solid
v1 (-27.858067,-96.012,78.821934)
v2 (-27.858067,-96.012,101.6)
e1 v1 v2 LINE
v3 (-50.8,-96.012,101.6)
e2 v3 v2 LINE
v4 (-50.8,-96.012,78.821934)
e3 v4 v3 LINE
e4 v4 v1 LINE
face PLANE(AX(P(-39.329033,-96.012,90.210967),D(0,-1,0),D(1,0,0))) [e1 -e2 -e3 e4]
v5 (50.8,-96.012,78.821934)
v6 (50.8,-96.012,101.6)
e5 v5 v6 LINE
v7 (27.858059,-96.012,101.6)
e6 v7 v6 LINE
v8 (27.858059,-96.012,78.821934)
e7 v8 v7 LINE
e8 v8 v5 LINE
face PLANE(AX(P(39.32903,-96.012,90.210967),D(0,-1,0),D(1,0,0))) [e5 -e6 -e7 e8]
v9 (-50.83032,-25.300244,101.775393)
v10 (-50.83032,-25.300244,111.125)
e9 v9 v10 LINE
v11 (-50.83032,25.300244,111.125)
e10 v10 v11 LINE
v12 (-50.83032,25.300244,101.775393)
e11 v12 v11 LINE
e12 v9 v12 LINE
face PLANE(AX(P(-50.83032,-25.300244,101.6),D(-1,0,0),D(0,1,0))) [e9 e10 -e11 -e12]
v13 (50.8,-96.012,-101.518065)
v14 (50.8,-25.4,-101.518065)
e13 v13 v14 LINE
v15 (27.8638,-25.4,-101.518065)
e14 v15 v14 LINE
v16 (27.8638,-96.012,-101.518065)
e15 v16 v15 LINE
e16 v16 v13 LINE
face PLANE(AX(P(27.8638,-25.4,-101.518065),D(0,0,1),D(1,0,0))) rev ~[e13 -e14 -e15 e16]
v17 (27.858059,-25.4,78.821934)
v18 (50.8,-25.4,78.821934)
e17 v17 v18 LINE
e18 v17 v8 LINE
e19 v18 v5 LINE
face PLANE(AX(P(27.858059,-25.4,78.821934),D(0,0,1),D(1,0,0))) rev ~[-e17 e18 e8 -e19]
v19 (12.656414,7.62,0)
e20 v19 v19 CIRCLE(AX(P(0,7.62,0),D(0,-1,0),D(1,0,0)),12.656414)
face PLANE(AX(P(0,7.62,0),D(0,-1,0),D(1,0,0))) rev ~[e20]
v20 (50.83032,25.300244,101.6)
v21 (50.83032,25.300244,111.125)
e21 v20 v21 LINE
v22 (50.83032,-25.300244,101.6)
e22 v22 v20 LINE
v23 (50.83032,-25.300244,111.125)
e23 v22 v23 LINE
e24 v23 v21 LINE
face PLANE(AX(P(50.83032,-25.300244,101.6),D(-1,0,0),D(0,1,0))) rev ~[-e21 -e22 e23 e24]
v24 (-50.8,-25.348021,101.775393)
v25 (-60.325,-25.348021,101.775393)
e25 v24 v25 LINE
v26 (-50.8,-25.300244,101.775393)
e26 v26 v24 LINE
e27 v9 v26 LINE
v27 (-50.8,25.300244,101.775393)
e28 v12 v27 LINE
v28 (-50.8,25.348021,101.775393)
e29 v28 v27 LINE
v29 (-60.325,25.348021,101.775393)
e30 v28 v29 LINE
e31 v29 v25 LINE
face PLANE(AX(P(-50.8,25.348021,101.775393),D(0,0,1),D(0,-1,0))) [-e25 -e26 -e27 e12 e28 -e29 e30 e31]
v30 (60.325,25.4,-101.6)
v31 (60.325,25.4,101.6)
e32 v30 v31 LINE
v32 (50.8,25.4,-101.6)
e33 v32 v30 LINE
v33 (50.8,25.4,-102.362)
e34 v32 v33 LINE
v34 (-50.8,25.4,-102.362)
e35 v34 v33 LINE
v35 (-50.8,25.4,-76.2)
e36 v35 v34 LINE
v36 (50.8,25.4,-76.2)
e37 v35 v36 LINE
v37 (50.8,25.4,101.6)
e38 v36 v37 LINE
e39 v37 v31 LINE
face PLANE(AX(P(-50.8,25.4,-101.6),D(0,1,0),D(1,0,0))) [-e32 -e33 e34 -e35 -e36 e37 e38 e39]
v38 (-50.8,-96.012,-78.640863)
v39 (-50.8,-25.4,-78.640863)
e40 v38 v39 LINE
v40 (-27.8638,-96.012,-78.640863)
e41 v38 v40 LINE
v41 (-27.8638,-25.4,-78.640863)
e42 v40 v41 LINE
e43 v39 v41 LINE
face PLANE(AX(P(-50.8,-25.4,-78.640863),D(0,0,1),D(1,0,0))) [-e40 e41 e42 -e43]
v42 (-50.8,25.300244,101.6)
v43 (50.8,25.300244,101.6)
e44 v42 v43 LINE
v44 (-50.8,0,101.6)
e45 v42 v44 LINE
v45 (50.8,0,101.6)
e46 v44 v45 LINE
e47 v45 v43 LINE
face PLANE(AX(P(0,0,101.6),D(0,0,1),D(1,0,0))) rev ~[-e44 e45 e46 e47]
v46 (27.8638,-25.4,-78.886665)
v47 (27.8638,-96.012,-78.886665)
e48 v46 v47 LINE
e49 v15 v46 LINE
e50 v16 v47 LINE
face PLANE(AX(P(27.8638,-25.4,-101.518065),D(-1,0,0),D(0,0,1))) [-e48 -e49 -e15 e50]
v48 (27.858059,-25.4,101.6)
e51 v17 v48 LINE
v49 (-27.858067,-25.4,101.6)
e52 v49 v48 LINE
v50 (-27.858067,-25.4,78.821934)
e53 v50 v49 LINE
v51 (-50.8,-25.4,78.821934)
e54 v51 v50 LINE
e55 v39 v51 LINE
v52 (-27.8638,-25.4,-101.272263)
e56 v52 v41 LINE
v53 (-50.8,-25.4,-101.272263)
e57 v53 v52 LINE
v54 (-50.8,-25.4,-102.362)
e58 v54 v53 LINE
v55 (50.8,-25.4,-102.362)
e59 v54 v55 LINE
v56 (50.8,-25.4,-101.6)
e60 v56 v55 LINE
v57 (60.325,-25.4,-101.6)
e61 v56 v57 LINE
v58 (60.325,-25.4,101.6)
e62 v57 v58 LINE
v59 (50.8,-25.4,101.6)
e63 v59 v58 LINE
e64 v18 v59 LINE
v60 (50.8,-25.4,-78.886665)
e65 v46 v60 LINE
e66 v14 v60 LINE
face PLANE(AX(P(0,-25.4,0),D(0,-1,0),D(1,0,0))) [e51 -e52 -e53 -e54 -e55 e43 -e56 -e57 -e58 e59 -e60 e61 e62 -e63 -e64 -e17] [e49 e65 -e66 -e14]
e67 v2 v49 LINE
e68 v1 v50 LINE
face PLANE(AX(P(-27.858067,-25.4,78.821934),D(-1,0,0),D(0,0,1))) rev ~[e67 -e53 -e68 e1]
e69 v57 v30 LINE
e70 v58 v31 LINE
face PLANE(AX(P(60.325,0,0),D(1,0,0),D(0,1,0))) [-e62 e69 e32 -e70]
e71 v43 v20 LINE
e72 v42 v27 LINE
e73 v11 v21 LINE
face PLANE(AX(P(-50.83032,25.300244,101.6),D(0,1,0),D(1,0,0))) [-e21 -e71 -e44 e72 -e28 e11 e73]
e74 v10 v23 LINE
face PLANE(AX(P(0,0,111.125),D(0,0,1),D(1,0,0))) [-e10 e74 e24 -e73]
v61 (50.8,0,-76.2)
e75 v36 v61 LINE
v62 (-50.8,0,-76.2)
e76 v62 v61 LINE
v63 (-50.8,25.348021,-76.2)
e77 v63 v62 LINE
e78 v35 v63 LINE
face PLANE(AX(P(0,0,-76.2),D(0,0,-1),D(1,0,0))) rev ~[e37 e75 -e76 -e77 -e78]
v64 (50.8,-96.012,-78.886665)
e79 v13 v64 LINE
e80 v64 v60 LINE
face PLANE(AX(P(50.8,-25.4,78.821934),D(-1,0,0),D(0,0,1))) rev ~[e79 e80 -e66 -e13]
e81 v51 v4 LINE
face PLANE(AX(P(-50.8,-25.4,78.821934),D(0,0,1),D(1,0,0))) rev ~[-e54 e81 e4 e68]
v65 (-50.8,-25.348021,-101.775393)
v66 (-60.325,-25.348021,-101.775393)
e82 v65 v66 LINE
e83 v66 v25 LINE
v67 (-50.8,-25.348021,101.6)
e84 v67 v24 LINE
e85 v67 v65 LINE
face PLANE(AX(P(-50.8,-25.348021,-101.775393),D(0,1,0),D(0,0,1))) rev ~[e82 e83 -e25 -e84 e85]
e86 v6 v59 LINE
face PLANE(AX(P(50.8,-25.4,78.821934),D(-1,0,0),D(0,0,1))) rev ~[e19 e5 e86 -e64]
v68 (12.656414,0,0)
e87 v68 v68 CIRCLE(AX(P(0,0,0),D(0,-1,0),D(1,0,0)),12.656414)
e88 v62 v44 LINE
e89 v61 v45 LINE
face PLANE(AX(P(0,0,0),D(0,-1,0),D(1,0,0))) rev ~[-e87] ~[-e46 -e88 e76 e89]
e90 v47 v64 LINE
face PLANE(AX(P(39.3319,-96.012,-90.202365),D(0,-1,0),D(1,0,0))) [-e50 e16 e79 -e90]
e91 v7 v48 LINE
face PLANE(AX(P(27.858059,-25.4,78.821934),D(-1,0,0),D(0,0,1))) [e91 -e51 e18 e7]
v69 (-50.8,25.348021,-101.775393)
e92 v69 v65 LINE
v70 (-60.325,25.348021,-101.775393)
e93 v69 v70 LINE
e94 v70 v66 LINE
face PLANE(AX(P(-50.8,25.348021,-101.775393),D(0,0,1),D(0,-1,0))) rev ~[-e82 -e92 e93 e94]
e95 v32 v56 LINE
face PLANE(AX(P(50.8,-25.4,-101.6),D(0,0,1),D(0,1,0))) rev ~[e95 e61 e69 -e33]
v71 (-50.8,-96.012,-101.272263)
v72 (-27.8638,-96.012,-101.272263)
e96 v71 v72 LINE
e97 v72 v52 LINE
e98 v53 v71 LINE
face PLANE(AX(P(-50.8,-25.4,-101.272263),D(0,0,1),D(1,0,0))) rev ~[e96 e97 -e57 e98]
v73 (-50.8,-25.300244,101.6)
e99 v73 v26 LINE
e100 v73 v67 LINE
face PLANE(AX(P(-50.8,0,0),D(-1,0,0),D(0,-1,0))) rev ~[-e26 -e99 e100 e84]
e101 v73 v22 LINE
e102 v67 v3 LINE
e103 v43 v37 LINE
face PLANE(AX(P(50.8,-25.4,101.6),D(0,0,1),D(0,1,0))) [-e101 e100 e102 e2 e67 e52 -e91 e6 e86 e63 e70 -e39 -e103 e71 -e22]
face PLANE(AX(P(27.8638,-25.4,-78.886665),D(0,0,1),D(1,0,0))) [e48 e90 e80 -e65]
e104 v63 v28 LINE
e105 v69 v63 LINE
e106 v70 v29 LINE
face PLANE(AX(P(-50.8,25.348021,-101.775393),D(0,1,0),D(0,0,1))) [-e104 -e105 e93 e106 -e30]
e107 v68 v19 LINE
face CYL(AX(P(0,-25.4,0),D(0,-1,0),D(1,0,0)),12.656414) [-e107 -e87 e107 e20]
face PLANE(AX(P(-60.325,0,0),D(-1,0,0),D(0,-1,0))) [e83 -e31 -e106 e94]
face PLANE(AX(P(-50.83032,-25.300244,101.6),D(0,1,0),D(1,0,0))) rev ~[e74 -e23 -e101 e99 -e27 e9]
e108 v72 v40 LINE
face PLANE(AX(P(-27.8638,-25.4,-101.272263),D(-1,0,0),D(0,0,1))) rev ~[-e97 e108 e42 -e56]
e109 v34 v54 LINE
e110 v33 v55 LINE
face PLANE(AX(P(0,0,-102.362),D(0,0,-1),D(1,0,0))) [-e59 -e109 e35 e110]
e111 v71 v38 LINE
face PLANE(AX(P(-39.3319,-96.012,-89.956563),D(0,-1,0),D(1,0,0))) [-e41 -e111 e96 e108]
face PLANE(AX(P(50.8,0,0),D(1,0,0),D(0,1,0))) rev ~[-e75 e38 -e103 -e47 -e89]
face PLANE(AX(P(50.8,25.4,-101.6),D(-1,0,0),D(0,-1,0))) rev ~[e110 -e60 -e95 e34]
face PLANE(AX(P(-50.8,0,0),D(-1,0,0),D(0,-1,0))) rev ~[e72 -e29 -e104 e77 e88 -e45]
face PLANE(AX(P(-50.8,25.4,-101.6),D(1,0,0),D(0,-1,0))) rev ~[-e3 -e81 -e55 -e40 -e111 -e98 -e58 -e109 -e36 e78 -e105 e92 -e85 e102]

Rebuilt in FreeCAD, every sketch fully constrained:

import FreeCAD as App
import Part
import Sketcher

V = App.Vector
Q = App.Units.Quantity


def add_polygon(sketch, points):
    """Adds a closed chain of lines whose ends are joined by coincident constraints."""
    first, n = sketch.GeometryCount, len(points)
    for a, b in zip(points, points[1:] + points[:1]):
        sketch.addGeometry(Part.LineSegment(App.Vector(*a, 0), App.Vector(*b, 0)), False)
    for i in range(n):
        sketch.addConstraint(Sketcher.Constraint("Coincident", first + i, 2, first + (i + 1) % n, 1))

doc = App.newDocument("Part")
params = doc.addObject("Spreadsheet::Sheet", "Params")
for row, (alias, value) in enumerate([
    ("sketch1_width", "4 in"),
    ("sketch1_height", "8 in"),
    ("pad1_length", "1 in"),
    ("sketch2_width", "0.903 in"),
    ("sketch2_height", "0.891 in"),
    ("pad2_length", "2.78 in"),
    ("sketch3_width", "2 in"),
    ("sketch3_height", "8 in"),
    ("pad3_length", "0.375 in"),
    ("pad4_length", "0.375 in"),
    ("pad5_length", "0.375 in"),
    ("sketch6_width", "4 in"),
    ("sketch6_height", "2 in"),
    ("pad6_length", "0.03 in"),
    ("pad6_length2", "1 in"),
    ("sketch7_width", "0.903 in"),
    ("sketch7_height", "0.891 in"),
    ("pad7_length", "1 in"),
    ("pad8_length", "1.3 in"),
], start=1):
    params.set(f"A{row}", alias)
    params.set(f"B{row}", "=" + value)
    params.setAlias(f"B{row}", alias)

body = doc.addObject("PartDesign::Body", "Body")

# Sketch on XZ plane
sketch1 = doc.addObject("Sketcher::SketchObject", "Sketch")
body.addObject(sketch1)
sketch1.AttachmentSupport = (doc.XZ_Plane, [""])
sketch1.MapMode = "FlatFace"
add_polygon(sketch1, [(-51, 102), (-51, -102), (51, -102), (51, 102)])  # lines 0-3
sketch1.addConstraint(Sketcher.Constraint("Vertical", 0))
sketch1.addConstraint(Sketcher.Constraint("Horizontal", 1))
sketch1.addConstraint(Sketcher.Constraint("Vertical", 2))
sketch1.addConstraint(Sketcher.Constraint("Horizontal", 3))
sketch1.addConstraint(Sketcher.Constraint("Symmetric", 0, 2, 2, 2, -1, 1))
sketch1.addConstraint(Sketcher.Constraint("DistanceX", 1, 1, 1, 2, Q("4 in")))
sketch1.addConstraint(Sketcher.Constraint("DistanceY", 0, 2, 0, 1, Q("8 in")))
sketch1.setExpression("Constraints[9]", "Params.sketch1_width")
sketch1.setExpression("Constraints[10]", "Params.sketch1_height")
pad1 = doc.addObject("PartDesign::Pad", "Pad")
body.addObject(pad1)
pad1.Profile = sketch1
pad1.setExpression("Length", "Params.pad1_length")

# Sketch on XZ plane
sketch2 = doc.addObject("Sketcher::SketchObject", "Sketch001")
body.addObject(sketch2)
sketch2.AttachmentSupport = (doc.XZ_Plane, [""])
sketch2.MapMode = "FlatFace"
sketch2.AttachmentOffset = App.Placement(V(0, 0, 1 * 25.4), App.Rotation())
add_polygon(sketch2, [(28, 102), (28, 79), (51, 79), (51, 102)])  # lines 0-3
add_polygon(sketch2, [(-51, 102), (-51, 79), (-28, 79), (-28, 102)])  # lines 4-7
add_polygon(sketch2, [(-51, -79), (-51, -101), (-28, -101), (-28, -79)])  # lines 8-11
add_polygon(sketch2, [(28, -79), (28, -102), (51, -102), (51, -79)])  # lines 12-15
sketch2.addConstraint(Sketcher.Constraint("Vertical", 0))
sketch2.addConstraint(Sketcher.Constraint("Horizontal", 1))
sketch2.addConstraint(Sketcher.Constraint("Vertical", 2))
sketch2.addConstraint(Sketcher.Constraint("Horizontal", 3))
sketch2.addConstraint(Sketcher.Constraint("Vertical", 4))
sketch2.addConstraint(Sketcher.Constraint("Horizontal", 5))
sketch2.addConstraint(Sketcher.Constraint("Vertical", 6))
sketch2.addConstraint(Sketcher.Constraint("Horizontal", 7))
sketch2.addConstraint(Sketcher.Constraint("Vertical", 8))
sketch2.addConstraint(Sketcher.Constraint("Horizontal", 9))
sketch2.addConstraint(Sketcher.Constraint("Vertical", 10))
sketch2.addConstraint(Sketcher.Constraint("Horizontal", 11))
sketch2.addConstraint(Sketcher.Constraint("Vertical", 12))
sketch2.addConstraint(Sketcher.Constraint("Horizontal", 13))
sketch2.addConstraint(Sketcher.Constraint("Vertical", 14))
sketch2.addConstraint(Sketcher.Constraint("Horizontal", 15))
sketch2.addConstraint(Sketcher.Constraint("Symmetric", 1, 2, 4, 2, -2))
sketch2.addConstraint(Sketcher.Constraint("Symmetric", 3, 2, 6, 2, -2))
sketch2.addConstraint(Sketcher.Constraint("Vertical", 7, 2, 8, 2))
sketch2.addConstraint(Sketcher.Constraint("Vertical", 2, 2, 13, 2))
sketch2.addConstraint(Sketcher.Constraint("Equal", 11, 13))
sketch2.addConstraint(Sketcher.Constraint("Equal", 10, 12))
sketch2.addConstraint(Sketcher.Constraint("DistanceX", -1, 1, 1, 2, Q("2 in")))
sketch2.addConstraint(Sketcher.Constraint("DistanceY", -1, 1, 2, 2, Q("4 in")))
sketch2.addConstraint(Sketcher.Constraint("DistanceY", 12, 2, 0, 2, Q("7.0999999 in")))
sketch2.addConstraint(Sketcher.Constraint("DistanceX", 9, 1, 9, 2, Q("0.903 in")))
sketch2.addConstraint(Sketcher.Constraint("DistanceY", 8, 2, 8, 1, Q("0.891 in")))
sketch2.addConstraint(Sketcher.Constraint("DistanceX", 1, 1, 1, 2, 22.941941))
sketch2.addConstraint(Sketcher.Constraint("DistanceY", 0, 2, 0, 1, 22.778066))
sketch2.addConstraint(Sketcher.Constraint("DistanceY", 8, 2, -1, 1, 101.272263))
sketch2.setExpression("Constraints[41]", "Params.sketch2_width")
sketch2.setExpression("Constraints[42]", "Params.sketch2_height")
pad2 = doc.addObject("PartDesign::Pad", "Pad001")
body.addObject(pad2)
pad2.Profile = sketch2
pad2.setExpression("Length", "Params.pad2_length")

# Sketch on YZ plane
sketch3 = doc.addObject("Sketcher::SketchObject", "Sketch002")
body.addObject(sketch3)
sketch3.AttachmentSupport = (doc.YZ_Plane, [""])
sketch3.MapMode = "FlatFace"
sketch3.AttachmentOffset = App.Placement(V(0, 0, 2 * 25.4), App.Rotation())
add_polygon(sketch3, [(-25, 102), (-25, -102), (25, -102), (25, 102)])  # lines 0-3
sketch3.addConstraint(Sketcher.Constraint("Vertical", 0))
sketch3.addConstraint(Sketcher.Constraint("Horizontal", 1))
sketch3.addConstraint(Sketcher.Constraint("Vertical", 2))
sketch3.addConstraint(Sketcher.Constraint("Horizontal", 3))
sketch3.addConstraint(Sketcher.Constraint("Symmetric", 0, 2, 2, 2, -1, 1))
sketch3.addConstraint(Sketcher.Constraint("DistanceX", 1, 1, 1, 2, Q("2 in")))
sketch3.addConstraint(Sketcher.Constraint("DistanceY", 0, 2, 0, 1, Q("8 in")))
sketch3.setExpression("Constraints[9]", "Params.sketch3_width")
sketch3.setExpression("Constraints[10]", "Params.sketch3_height")
pad3 = doc.addObject("PartDesign::Pad", "Pad002")
body.addObject(pad3)
pad3.Profile = sketch3
pad3.setExpression("Length", "Params.pad3_length")

# Sketch on XY plane
sketch4 = doc.addObject("Sketcher::SketchObject", "Sketch003")
body.addObject(sketch4)
sketch4.AttachmentSupport = (doc.XY_Plane, [""])
sketch4.MapMode = "FlatFace"
sketch4.AttachmentOffset = App.Placement(V(0, 0, 4 * 25.4), App.Rotation())
add_polygon(sketch4, [(-51, 25), (-51, -25), (51, -25), (51, 25)])  # lines 0-3
sketch4.addConstraint(Sketcher.Constraint("Vertical", 0))
sketch4.addConstraint(Sketcher.Constraint("Horizontal", 1))
sketch4.addConstraint(Sketcher.Constraint("Vertical", 2))
sketch4.addConstraint(Sketcher.Constraint("Horizontal", 3))
sketch4.addConstraint(Sketcher.Constraint("Symmetric", 0, 2, 2, 2, -1, 1))
sketch4.addConstraint(Sketcher.Constraint("DistanceX", 1, 1, 1, 2, 101.660639))
sketch4.addConstraint(Sketcher.Constraint("DistanceY", 0, 2, 0, 1, 50.600488))
pad4 = doc.addObject("PartDesign::Pad", "Pad003")
body.addObject(pad4)
pad4.Profile = sketch4
pad4.setExpression("Length", "Params.pad4_length")

# Sketch on YZ plane
sketch5 = doc.addObject("Sketcher::SketchObject", "Sketch004")
body.addObject(sketch5)
sketch5.AttachmentSupport = (doc.YZ_Plane, [""])
sketch5.MapMode = "FlatFace"
sketch5.AttachmentOffset = App.Placement(V(0, 0, -2 * 25.4), App.Rotation())
add_polygon(sketch5, [(25, 102), (25, -102), (-25, -102), (-25, 102)])  # lines 0-3
sketch5.addConstraint(Sketcher.Constraint("Vertical", 0))
sketch5.addConstraint(Sketcher.Constraint("Horizontal", 1))
sketch5.addConstraint(Sketcher.Constraint("Vertical", 2))
sketch5.addConstraint(Sketcher.Constraint("Horizontal", 3))
sketch5.addConstraint(Sketcher.Constraint("Symmetric", 0, 2, 2, 2, -1, 1))
sketch5.addConstraint(Sketcher.Constraint("DistanceX", 1, 2, 1, 1, 50.696041))
sketch5.addConstraint(Sketcher.Constraint("DistanceY", 0, 2, 0, 1, 203.550786))
pad5 = doc.addObject("PartDesign::Pad", "Pad004")
body.addObject(pad5)
pad5.Profile = sketch5
pad5.setExpression("Length", "Params.pad5_length")
pad5.Reversed = True

# Sketch on XY plane
sketch6 = doc.addObject("Sketcher::SketchObject", "Sketch005")
body.addObject(sketch6)
sketch6.AttachmentSupport = (doc.XY_Plane, [""])
sketch6.MapMode = "FlatFace"
sketch6.AttachmentOffset = App.Placement(V(0, 0, -4 * 25.4), App.Rotation())
add_polygon(sketch6, [(-51, -25), (-51, 25), (51, 25), (51, -25)])  # lines 0-3
sketch6.addConstraint(Sketcher.Constraint("Vertical", 0))
sketch6.addConstraint(Sketcher.Constraint("Horizontal", 1))
sketch6.addConstraint(Sketcher.Constraint("Vertical", 2))
sketch6.addConstraint(Sketcher.Constraint("Horizontal", 3))
sketch6.addConstraint(Sketcher.Constraint("Symmetric", 0, 2, 2, 2, -1, 1))
sketch6.addConstraint(Sketcher.Constraint("DistanceX", 1, 1, 1, 2, Q("4 in")))
sketch6.addConstraint(Sketcher.Constraint("DistanceY", 0, 1, 0, 2, Q("2 in")))
sketch6.setExpression("Constraints[9]", "Params.sketch6_width")
sketch6.setExpression("Constraints[10]", "Params.sketch6_height")
pad6 = doc.addObject("PartDesign::Pad", "Pad005")
body.addObject(pad6)
pad6.Profile = sketch6
pad6.Type = "TwoLengths"
pad6.setExpression("Length", "Params.pad6_length")
pad6.setExpression("Length2", "Params.pad6_length2")
pad6.Reversed = True

# Sketch on XZ plane
sketch7 = doc.addObject("Sketcher::SketchObject", "Sketch006")
body.addObject(sketch7)
sketch7.AttachmentSupport = (doc.XZ_Plane, [""])
sketch7.MapMode = "FlatFace"
sketch7.AttachmentOffset = App.Placement(V(0, 0, 1 * 25.4), App.Rotation())
add_polygon(sketch7, [(28, 102), (28, 79), (51, 79), (51, 102)])  # lines 0-3
add_polygon(sketch7, [(-51, 102), (-51, 79), (-28, 79), (-28, 102)])  # lines 4-7
add_polygon(sketch7, [(-51, -79), (-51, -101), (-28, -101), (-28, -79)])  # lines 8-11
add_polygon(sketch7, [(28, -79), (28, -102), (51, -102), (51, -79)])  # lines 12-15
sketch7.addConstraint(Sketcher.Constraint("Vertical", 0))
sketch7.addConstraint(Sketcher.Constraint("Horizontal", 1))
sketch7.addConstraint(Sketcher.Constraint("Vertical", 2))
sketch7.addConstraint(Sketcher.Constraint("Horizontal", 3))
sketch7.addConstraint(Sketcher.Constraint("Vertical", 4))
sketch7.addConstraint(Sketcher.Constraint("Horizontal", 5))
sketch7.addConstraint(Sketcher.Constraint("Vertical", 6))
sketch7.addConstraint(Sketcher.Constraint("Horizontal", 7))
sketch7.addConstraint(Sketcher.Constraint("Vertical", 8))
sketch7.addConstraint(Sketcher.Constraint("Horizontal", 9))
sketch7.addConstraint(Sketcher.Constraint("Vertical", 10))
sketch7.addConstraint(Sketcher.Constraint("Horizontal", 11))
sketch7.addConstraint(Sketcher.Constraint("Vertical", 12))
sketch7.addConstraint(Sketcher.Constraint("Horizontal", 13))
sketch7.addConstraint(Sketcher.Constraint("Vertical", 14))
sketch7.addConstraint(Sketcher.Constraint("Horizontal", 15))
sketch7.addConstraint(Sketcher.Constraint("Symmetric", 1, 2, 4, 2, -2))
sketch7.addConstraint(Sketcher.Constraint("Symmetric", 3, 2, 6, 2, -2))
sketch7.addConstraint(Sketcher.Constraint("Vertical", 7, 2, 8, 2))
sketch7.addConstraint(Sketcher.Constraint("Vertical", 2, 2, 13, 2))
sketch7.addConstraint(Sketcher.Constraint("Equal", 11, 13))
sketch7.addConstraint(Sketcher.Constraint("Equal", 10, 12))
sketch7.addConstraint(Sketcher.Constraint("DistanceX", -1, 1, 1, 2, Q("2 in")))
sketch7.addConstraint(Sketcher.Constraint("DistanceY", -1, 1, 2, 2, Q("4 in")))
sketch7.addConstraint(Sketcher.Constraint("DistanceY", 12, 2, 0, 2, Q("7.0999999 in")))
sketch7.addConstraint(Sketcher.Constraint("DistanceX", 9, 1, 9, 2, Q("0.903 in")))
sketch7.addConstraint(Sketcher.Constraint("DistanceY", 8, 2, 8, 1, Q("0.891 in")))
sketch7.addConstraint(Sketcher.Constraint("DistanceX", 1, 1, 1, 2, 22.941941))
sketch7.addConstraint(Sketcher.Constraint("DistanceY", 0, 2, 0, 1, 22.778066))
sketch7.addConstraint(Sketcher.Constraint("DistanceY", 8, 2, -1, 1, 101.272263))
sketch7.setExpression("Constraints[41]", "Params.sketch7_width")
sketch7.setExpression("Constraints[42]", "Params.sketch7_height")
pad7 = doc.addObject("PartDesign::Pad", "Pad006")
body.addObject(pad7)
pad7.Profile = sketch7
pad7.setExpression("Length", "Params.pad7_length")

# Sketch on XZ plane
sketch8 = doc.addObject("Sketcher::SketchObject", "Sketch007")
body.addObject(sketch8)
sketch8.AttachmentSupport = (doc.XZ_Plane, [""])
sketch8.MapMode = "FlatFace"
sketch8.AttachmentOffset = App.Placement(V(0, 0, 1 * 25.4), App.Rotation())
sketch8.addGeometry(Part.Circle(V(0, 0, 0), V(0, 0, 1), 13), False)
sketch8.addConstraint(Sketcher.Constraint("Coincident", 0, 3, -1, 1))
sketch8.addConstraint(Sketcher.Constraint("Diameter", 0, 25.312829))
pad8 = doc.addObject("PartDesign::Pad", "Pad007")
body.addObject(pad8)
pad8.Profile = sketch8
pad8.setExpression("Length", "Params.pad8_length")
pad8.Reversed = True

doc.recompute()
